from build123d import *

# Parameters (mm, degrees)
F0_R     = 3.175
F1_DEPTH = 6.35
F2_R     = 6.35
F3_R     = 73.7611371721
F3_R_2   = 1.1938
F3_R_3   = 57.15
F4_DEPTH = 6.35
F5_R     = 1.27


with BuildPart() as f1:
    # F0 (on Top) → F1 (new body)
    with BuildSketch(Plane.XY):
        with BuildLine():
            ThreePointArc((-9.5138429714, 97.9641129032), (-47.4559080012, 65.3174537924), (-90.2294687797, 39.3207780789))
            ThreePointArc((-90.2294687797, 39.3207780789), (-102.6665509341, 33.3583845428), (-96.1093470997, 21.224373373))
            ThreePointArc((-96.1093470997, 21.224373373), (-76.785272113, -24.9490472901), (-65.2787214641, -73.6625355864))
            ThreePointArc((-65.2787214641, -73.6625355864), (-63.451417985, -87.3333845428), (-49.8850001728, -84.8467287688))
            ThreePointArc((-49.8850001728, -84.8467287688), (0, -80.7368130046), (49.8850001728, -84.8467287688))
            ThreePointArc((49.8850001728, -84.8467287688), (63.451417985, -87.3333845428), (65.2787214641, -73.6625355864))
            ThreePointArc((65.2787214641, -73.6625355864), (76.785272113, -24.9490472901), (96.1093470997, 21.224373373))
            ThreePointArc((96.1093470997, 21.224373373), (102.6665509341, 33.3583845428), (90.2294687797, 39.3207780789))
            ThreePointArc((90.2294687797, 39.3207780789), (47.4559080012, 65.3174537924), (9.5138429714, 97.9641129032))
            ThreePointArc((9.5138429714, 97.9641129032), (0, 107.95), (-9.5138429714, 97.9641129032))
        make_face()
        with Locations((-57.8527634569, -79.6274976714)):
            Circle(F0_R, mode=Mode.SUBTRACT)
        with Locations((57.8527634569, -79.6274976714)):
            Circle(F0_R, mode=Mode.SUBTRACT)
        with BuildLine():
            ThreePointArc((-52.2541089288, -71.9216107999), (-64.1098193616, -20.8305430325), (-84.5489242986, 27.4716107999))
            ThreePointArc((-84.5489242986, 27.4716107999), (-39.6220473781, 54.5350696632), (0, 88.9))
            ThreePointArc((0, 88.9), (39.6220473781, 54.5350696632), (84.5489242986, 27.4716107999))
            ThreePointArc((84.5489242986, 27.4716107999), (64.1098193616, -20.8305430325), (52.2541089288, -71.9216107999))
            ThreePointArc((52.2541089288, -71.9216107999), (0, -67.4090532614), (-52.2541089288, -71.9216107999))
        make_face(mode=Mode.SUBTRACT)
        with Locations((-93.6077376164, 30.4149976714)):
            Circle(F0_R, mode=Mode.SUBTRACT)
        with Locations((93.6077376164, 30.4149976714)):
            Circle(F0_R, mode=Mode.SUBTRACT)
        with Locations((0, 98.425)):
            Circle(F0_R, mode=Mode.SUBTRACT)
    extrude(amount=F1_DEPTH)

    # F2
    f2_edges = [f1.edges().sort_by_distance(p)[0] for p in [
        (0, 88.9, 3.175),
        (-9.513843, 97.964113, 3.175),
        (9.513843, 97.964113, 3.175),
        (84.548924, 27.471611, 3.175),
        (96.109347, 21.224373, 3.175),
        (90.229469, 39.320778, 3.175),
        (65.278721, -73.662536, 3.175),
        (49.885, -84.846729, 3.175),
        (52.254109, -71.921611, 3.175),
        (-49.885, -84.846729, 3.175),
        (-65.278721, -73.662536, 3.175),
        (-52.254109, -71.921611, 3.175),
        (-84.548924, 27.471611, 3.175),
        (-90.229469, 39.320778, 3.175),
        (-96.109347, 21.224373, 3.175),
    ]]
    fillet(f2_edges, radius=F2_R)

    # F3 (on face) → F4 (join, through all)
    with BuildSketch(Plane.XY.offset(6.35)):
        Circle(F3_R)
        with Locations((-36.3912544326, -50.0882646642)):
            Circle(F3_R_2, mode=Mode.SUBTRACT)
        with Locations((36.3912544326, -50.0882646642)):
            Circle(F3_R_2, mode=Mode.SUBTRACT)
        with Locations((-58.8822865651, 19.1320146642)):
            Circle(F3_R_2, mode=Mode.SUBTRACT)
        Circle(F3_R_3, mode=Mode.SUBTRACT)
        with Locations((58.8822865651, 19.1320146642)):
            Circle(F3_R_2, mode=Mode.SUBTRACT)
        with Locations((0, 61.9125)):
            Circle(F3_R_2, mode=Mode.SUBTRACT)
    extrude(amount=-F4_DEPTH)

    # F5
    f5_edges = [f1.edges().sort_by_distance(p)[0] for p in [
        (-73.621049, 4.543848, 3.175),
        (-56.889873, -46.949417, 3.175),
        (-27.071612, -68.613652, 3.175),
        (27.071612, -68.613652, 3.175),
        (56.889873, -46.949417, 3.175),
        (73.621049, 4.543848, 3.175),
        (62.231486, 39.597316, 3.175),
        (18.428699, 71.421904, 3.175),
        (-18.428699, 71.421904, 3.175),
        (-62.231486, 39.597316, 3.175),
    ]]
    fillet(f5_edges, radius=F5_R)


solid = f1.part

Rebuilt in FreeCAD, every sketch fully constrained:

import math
import FreeCAD as App
import Part
import Sketcher
from FreeCAD import Vector
Q = App.Units.Quantity


def edges_at(feature, points):
    """Names of the edges that pass closest to the given points."""
    edges = feature.Shape.Edges
    near = lambda p: min(range(len(edges)), key=lambda i: edges[i].distToShape(Part.Vertex(*p))[0])
    return sorted({f"Edge{near(p) + 1}" for p in points})

doc = App.newDocument("Part")
body = doc.addObject("PartDesign::Body", "Body")

sketch1 = body.newObject("Sketcher::SketchObject", "Sketch")
sketch1.AttachmentSupport = (doc.getObject("XY_Plane"), [""])
sketch1.MapMode = "FlatFace"
sketch1.addGeometry([
    Part.ArcOfCircle(Part.Circle(Vector(-226.6, 311.9, 0), Vector(0, 0, 1), 304.8), math.radians(-63.42), math.radians(-44.58)),
    Part.ArcOfCircle(Part.Circle(Vector(-93.6, 30.4, 0), Vector(0, 0, 1), 9.5), math.radians(69), math.radians(255)),
    Part.ArcOfCircle(Part.Circle(Vector(-366.7, -119.1, 0), Vector(0, 0, 1), 304.8), math.radians(8.58), math.radians(27.42)),
    Part.ArcOfCircle(Part.Circle(Vector(-57.9, -79.6, 0), Vector(0, 0, 1), 9.5), math.radians(141), math.radians(327)),
    Part.ArcOfCircle(Part.Circle(Vector(0, -385.5, 0), Vector(0, 0, 1), 304.8), math.radians(80.58), math.radians(99.42)),
    Part.ArcOfCircle(Part.Circle(Vector(57.9, -79.6, 0), Vector(0, 0, 1), 9.5), math.radians(-147), math.radians(39)),
    Part.ArcOfCircle(Part.Circle(Vector(366.7, -119.1, 0), Vector(0, 0, 1), 304.8), math.radians(152.58), math.radians(171.42)),
    Part.ArcOfCircle(Part.Circle(Vector(93.6, 30.4, 0), Vector(0, 0, 1), 9.5), math.radians(-75), math.radians(111)),
    Part.ArcOfCircle(Part.Circle(Vector(226.6, 311.9, 0), Vector(0, 0, 1), 304.8), math.radians(-135.42), math.radians(-116.58)),
    Part.ArcOfCircle(Part.Circle(Vector(0, 98.4, 0), Vector(0, 0, 1), 9.5), math.radians(-3), math.radians(183)),
    Part.Circle(Vector(-57.9, -79.6, 0), Vector(0, 0, 1), 3.2),
    Part.Circle(Vector(57.9, -79.6, 0), Vector(0, 0, 1), 3.2),
    Part.ArcOfCircle(Part.Circle(Vector(0, -372.2, 0), Vector(0, 0, 1), 304.8), math.radians(80.13), math.radians(99.87)),
    Part.ArcOfCircle(Part.Circle(Vector(-354, -115, 0), Vector(0, 0, 1), 304.8), math.radians(8.13), math.radians(27.87)),
    Part.ArcOfCircle(Part.Circle(Vector(-218.8, 301.1, 0), Vector(0, 0, 1), 304.8), math.radians(-63.87), math.radians(-44.13)),
    Part.ArcOfCircle(Part.Circle(Vector(218.8, 301.1, 0), Vector(0, 0, 1), 304.8), math.radians(-135.87), math.radians(-116.13)),
    Part.ArcOfCircle(Part.Circle(Vector(354, -115, 0), Vector(0, 0, 1), 304.8), math.radians(152.13), math.radians(171.87)),
    Part.Circle(Vector(-93.6, 30.4, 0), Vector(0, 0, 1), 3.2),
    Part.Circle(Vector(93.6, 30.4, 0), Vector(0, 0, 1), 3.2),
    Part.Circle(Vector(0, 98.4, 0), Vector(0, 0, 1), 3.2),
], False)
sketch1.addConstraint([
    Sketcher.Constraint("Coincident", 0, 1, 1, 1),
    Sketcher.Constraint("Coincident", 1, 2, 2, 2),
    Sketcher.Constraint("Coincident", 2, 1, 3, 1),
    Sketcher.Constraint("Coincident", 3, 2, 4, 2),
    Sketcher.Constraint("Coincident", 4, 1, 5, 1),
    Sketcher.Constraint("Coincident", 5, 2, 6, 2),
    Sketcher.Constraint("Coincident", 6, 1, 7, 1),
    Sketcher.Constraint("Coincident", 7, 2, 8, 2),
    Sketcher.Constraint("Coincident", 8, 1, 9, 1),
    Sketcher.Constraint("Coincident", 9, 2, 0, 2),
    Sketcher.Constraint("Coincident", 12, 2, 13, 1),
    Sketcher.Constraint("Coincident", 13, 2, 14, 1),
    Sketcher.Constraint("Coincident", 14, 2, 15, 1),
    Sketcher.Constraint("Coincident", 15, 2, 16, 1),
    Sketcher.Constraint("Coincident", 16, 2, 12, 1),
    Sketcher.Constraint("Coincident", 10, 3, 3, 3),
    Sketcher.Constraint("Coincident", 11, 3, 5, 3),
    Sketcher.Constraint("Coincident", 17, 3, 1, 3),
    Sketcher.Constraint("Coincident", 18, 3, 7, 3),
    Sketcher.Constraint("Coincident", 19, 3, 9, 3),
    Sketcher.Constraint("Equal", 0, 2),
    Sketcher.Constraint("Equal", 1, 3),
    Sketcher.Constraint("Equal", 2, 4),
    Sketcher.Constraint("Equal", 3, 5),
    Sketcher.Constraint("Equal", 4, 6),
    Sketcher.Constraint("Equal", 5, 7),
    Sketcher.Constraint("Equal", 6, 8),
    Sketcher.Constraint("Equal", 7, 9),
    Sketcher.Constraint("Equal", 10, 11),
    Sketcher.Constraint("Equal", 8, 12),
    Sketcher.Constraint("Equal", 12, 13),
    Sketcher.Constraint("Equal", 13, 14),
    Sketcher.Constraint("Equal", 14, 15),
    Sketcher.Constraint("Equal", 15, 16),
    Sketcher.Constraint("Equal", 11, 17),
    Sketcher.Constraint("Equal", 17, 18),
    Sketcher.Constraint("Equal", 18, 19),
    Sketcher.Constraint("Symmetric", 3, 3, 5, 3, -2),
    Sketcher.Constraint("Symmetric", 2, 3, 6, 3, -2),
    Sketcher.Constraint("Symmetric", 1, 3, 7, 3, -2),
    Sketcher.Constraint("Symmetric", 0, 3, 8, 3, -2),
    Sketcher.Constraint("Symmetric", 14, 3, 15, 3, -2),
    Sketcher.Constraint("Symmetric", 13, 3, 16, 3, -2),
    Sketcher.Constraint("PointOnObject", 4, 3, -2),
    Sketcher.Constraint("PointOnObject", 9, 3, -2),
    Sketcher.Constraint("PointOnObject", 12, 3, -2),
    Sketcher.Constraint("Radius", 0, Q("12 in")),
    Sketcher.Constraint("Diameter", 10, Q("0.25 in")),
    Sketcher.Constraint("Radius", 1, Q("0.375 in")),
    Sketcher.Constraint("DistanceY", -1, 1, 14, 2, Q("3.5 in")),
    Sketcher.Constraint("DistanceY", -1, 1, 9, 3, Q("3.875 in")),
    Sketcher.Constraint("DistanceY", 2, 1, -1, 1, Q("2.9000998 in")),
    Sketcher.Constraint("DistanceX", 2, 3, -1, 1, Q("366.667298 mm")),
    Sketcher.Constraint("DistanceX", 3, 2, -1, 1, Q("49.885 mm")),
    Sketcher.Constraint("DistanceX", 1, 3, 5, 3, Q("151.460501 mm")),
    Sketcher.Constraint("DistanceY", -1, 1, 14, 3, Q("301.12345 mm")),
    Sketcher.Constraint("DistanceX", 0, 1, -1, 1, Q("90.229469 mm")),
    Sketcher.Constraint("DistanceY", -1, 1, 0, 1, Q("39.320778 mm")),
    Sketcher.Constraint("DistanceX", 2, 1, -1, 1, Q("65.278721 mm")),
    Sketcher.Constraint("DistanceY", 3, 2, -1, 1, Q("84.846729 mm")),
    Sketcher.Constraint("DistanceX", 12, 2, -1, 1, Q("52.254109 mm")),
    Sketcher.Constraint("DistanceY", 12, 2, -1, 1, Q("71.921611 mm")),
    Sketcher.Constraint("DistanceY", 2, 3, 0, 3, Q("431.043261 mm")),
    Sketcher.Constraint("DistanceY", 13, 3, 1, 3, Q("145.433921 mm")),
])
pad1 = body.newObject("PartDesign::Pad", "Pad")
pad1.Profile = sketch1
pad1.Length = Q("0.25 in")
doc.recompute()

fillet = body.newObject("PartDesign::Fillet", "Fillet")
fillet.Base = (pad1, edges_at(pad1, [
    (0, 88.9, 3.175),
    (-9.514, 97.964, 3.175),
    (9.514, 97.964, 3.175),
    (84.549, 27.472, 3.175),
    (96.109, 21.224, 3.175),
    (90.229, 39.321, 3.175),
    (65.279, -73.663, 3.175),
    (49.885, -84.847, 3.175),
    (52.254, -71.922, 3.175),
    (-49.885, -84.847, 3.175),
    (-65.279, -73.663, 3.175),
    (-52.254, -71.922, 3.175),
    (-84.549, 27.472, 3.175),
    (-90.229, 39.321, 3.175),
    (-96.109, 21.224, 3.175),
]))
fillet.Radius = Q("0.25 in")

sketch2 = body.newObject("Sketcher::SketchObject", "Sketch001")
sketch2.AttachmentSupport = (doc.getObject("XY_Plane"), [""])
sketch2.MapMode = "FlatFace"
sketch2.AttachmentOffset = App.Placement(Vector(0, 0, 0.25 * 25.4), App.Rotation())
sketch2.addGeometry([
    Part.Circle(Vector(0, 0, 0), Vector(0, 0, 1), 73.8),
    Part.Circle(Vector(-36.4, -50.1, 0), Vector(0, 0, 1), 1.2),
    Part.Circle(Vector(36.4, -50.1, 0), Vector(0, 0, 1), 1.2),
    Part.Circle(Vector(0, 0, 0), Vector(0, 0, 1), 57.1),
    Part.Circle(Vector(-58.9, 19.1, 0), Vector(0, 0, 1), 1.2),
    Part.Circle(Vector(58.9, 19.1, 0), Vector(0, 0, 1), 1.2),
    Part.Circle(Vector(0, 61.9, 0), Vector(0, 0, 1), 1.2),
], False)
sketch2.addConstraint([
    Sketcher.Constraint("Coincident", 0, 3, -1, 1),
    Sketcher.Constraint("Coincident", 3, 3, -1, 1),
    Sketcher.Constraint("Equal", 1, 2),
    Sketcher.Constraint("Equal", 2, 4),
    Sketcher.Constraint("Equal", 4, 5),
    Sketcher.Constraint("Equal", 5, 6),
    Sketcher.Constraint("Symmetric", 1, 3, 2, 3, -2),
    Sketcher.Constraint("Symmetric", 4, 3, 5, 3, -2),
    Sketcher.Constraint("PointOnObject", 6, 3, -2),
    Sketcher.Constraint("Diameter", 3, Q("4.5 in")),
    Sketcher.Constraint("Diameter", 1, Q("0.094 in")),
    Sketcher.Constraint("DistanceY", -1, 1, 6, 3, Q("2.4375 in")),
    Sketcher.Constraint("Diameter", 0, Q("147.522274 mm")),
    Sketcher.Constraint("DistanceX", 1, 3, 2, 3, Q("72.782509 mm")),
    Sketcher.Constraint("DistanceY", 1, 3, 4, 3, Q("69.220279 mm")),
    Sketcher.Constraint("DistanceX", 4, 3, 2, 3, Q("95.273541 mm")),
    Sketcher.Constraint("DistanceY", 1, 3, -1, 1, Q("50.088265 mm")),
])
pad2 = body.newObject("PartDesign::Pad", "Pad001")
pad2.Profile = sketch2
pad2.Length = Q("0.25 in")
pad2.Reversed = True
doc.recompute()

fillet2 = body.newObject("PartDesign::Fillet", "Fillet001")
fillet2.Base = (pad2, edges_at(pad2, [
    (-73.621, 4.544, 3.175),
    (-56.89, -46.949, 3.175),
    (-27.072, -68.614, 3.175),
    (27.072, -68.614, 3.175),
    (56.89, -46.949, 3.175),
    (73.621, 4.544, 3.175),
    (62.231, 39.597, 3.175),
    (18.429, 71.422, 3.175),
    (-18.429, 71.422, 3.175),
    (-62.231, 39.597, 3.175),
]))
fillet2.Radius = Q("0.05 in")

doc.recompute()
